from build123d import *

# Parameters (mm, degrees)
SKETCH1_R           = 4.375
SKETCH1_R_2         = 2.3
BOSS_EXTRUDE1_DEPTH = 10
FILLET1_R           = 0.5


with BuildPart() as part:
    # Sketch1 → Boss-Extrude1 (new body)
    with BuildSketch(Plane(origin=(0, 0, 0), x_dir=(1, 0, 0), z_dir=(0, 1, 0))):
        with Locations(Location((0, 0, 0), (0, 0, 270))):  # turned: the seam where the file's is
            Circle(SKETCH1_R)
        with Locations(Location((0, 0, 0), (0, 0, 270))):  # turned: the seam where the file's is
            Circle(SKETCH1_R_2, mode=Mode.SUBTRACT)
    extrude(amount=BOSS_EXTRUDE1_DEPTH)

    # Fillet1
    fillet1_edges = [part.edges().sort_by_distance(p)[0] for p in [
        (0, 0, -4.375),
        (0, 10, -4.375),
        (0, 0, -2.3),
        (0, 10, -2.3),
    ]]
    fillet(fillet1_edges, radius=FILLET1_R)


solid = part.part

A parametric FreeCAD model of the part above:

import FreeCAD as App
import Part
import Sketcher

V = App.Vector
Q = App.Units.Quantity


def edges_at(feature, points):
    """Names of the edges that pass closest to the given points."""
    edges = feature.Shape.Edges
    near = lambda p: min(range(len(edges)), key=lambda i: edges[i].distToShape(Part.Vertex(*p))[0])
    return sorted({f"Edge{near(p) + 1}" for p in points})

doc = App.newDocument("Part")
params = doc.addObject("Spreadsheet::Sheet", "Params")
for row, (alias, value) in enumerate([
    ("sketch1_diameter", "4.6 mm"),
    ("sketch1_diameter2", "8.75 mm"),
    ("pad1_length", "10 mm"),
    ("fillet_radius", "0.5 mm"),
], start=1):
    params.set(f"A{row}", alias)
    params.set(f"B{row}", "=" + value)
    params.setAlias(f"B{row}", alias)

body = doc.addObject("PartDesign::Body", "Body")

sketch1 = body.newObject("Sketcher::SketchObject", "Sketch")
sketch1.AttachmentSupport = (doc.getObject("XZ_Plane"), [""])
sketch1.MapMode = "FlatFace"
sketch1.addGeometry(Part.Circle(V(0, 0, 0), V(0, 0, 1), 4.375), False)
sketch1.addGeometry(Part.Circle(V(0, 0, 0), V(0, 0, 1), 2.3), False)
sketch1.addConstraint(Sketcher.Constraint("Coincident", 0, 3, -1, 1))
sketch1.addConstraint(Sketcher.Constraint("Coincident", 1, 3, -1, 1))
sketch1.addConstraint(Sketcher.Constraint("Diameter", 1, Q("4.6 mm")))
sketch1.addConstraint(Sketcher.Constraint("Diameter", 0, Q("8.75 mm")))
sketch1.setExpression("Constraints[2]", "Params.sketch1_diameter")
sketch1.setExpression("Constraints[3]", "Params.sketch1_diameter2")
pad1 = body.newObject("PartDesign::Pad", "Pad")
pad1.Profile = sketch1
pad1.setExpression("Length", "Params.pad1_length")
pad1.Reversed = True
doc.recompute()

fillet = body.newObject("PartDesign::Fillet", "Fillet")
fillet.Base = (pad1, edges_at(pad1, [
    (0, 0, -4.375),
    (0, 10, -4.375),
    (0, 0, -2.3),
    (0, 10, -2.3),
]))
fillet.setExpression("Radius", "Params.fillet_radius")

doc.recompute()
